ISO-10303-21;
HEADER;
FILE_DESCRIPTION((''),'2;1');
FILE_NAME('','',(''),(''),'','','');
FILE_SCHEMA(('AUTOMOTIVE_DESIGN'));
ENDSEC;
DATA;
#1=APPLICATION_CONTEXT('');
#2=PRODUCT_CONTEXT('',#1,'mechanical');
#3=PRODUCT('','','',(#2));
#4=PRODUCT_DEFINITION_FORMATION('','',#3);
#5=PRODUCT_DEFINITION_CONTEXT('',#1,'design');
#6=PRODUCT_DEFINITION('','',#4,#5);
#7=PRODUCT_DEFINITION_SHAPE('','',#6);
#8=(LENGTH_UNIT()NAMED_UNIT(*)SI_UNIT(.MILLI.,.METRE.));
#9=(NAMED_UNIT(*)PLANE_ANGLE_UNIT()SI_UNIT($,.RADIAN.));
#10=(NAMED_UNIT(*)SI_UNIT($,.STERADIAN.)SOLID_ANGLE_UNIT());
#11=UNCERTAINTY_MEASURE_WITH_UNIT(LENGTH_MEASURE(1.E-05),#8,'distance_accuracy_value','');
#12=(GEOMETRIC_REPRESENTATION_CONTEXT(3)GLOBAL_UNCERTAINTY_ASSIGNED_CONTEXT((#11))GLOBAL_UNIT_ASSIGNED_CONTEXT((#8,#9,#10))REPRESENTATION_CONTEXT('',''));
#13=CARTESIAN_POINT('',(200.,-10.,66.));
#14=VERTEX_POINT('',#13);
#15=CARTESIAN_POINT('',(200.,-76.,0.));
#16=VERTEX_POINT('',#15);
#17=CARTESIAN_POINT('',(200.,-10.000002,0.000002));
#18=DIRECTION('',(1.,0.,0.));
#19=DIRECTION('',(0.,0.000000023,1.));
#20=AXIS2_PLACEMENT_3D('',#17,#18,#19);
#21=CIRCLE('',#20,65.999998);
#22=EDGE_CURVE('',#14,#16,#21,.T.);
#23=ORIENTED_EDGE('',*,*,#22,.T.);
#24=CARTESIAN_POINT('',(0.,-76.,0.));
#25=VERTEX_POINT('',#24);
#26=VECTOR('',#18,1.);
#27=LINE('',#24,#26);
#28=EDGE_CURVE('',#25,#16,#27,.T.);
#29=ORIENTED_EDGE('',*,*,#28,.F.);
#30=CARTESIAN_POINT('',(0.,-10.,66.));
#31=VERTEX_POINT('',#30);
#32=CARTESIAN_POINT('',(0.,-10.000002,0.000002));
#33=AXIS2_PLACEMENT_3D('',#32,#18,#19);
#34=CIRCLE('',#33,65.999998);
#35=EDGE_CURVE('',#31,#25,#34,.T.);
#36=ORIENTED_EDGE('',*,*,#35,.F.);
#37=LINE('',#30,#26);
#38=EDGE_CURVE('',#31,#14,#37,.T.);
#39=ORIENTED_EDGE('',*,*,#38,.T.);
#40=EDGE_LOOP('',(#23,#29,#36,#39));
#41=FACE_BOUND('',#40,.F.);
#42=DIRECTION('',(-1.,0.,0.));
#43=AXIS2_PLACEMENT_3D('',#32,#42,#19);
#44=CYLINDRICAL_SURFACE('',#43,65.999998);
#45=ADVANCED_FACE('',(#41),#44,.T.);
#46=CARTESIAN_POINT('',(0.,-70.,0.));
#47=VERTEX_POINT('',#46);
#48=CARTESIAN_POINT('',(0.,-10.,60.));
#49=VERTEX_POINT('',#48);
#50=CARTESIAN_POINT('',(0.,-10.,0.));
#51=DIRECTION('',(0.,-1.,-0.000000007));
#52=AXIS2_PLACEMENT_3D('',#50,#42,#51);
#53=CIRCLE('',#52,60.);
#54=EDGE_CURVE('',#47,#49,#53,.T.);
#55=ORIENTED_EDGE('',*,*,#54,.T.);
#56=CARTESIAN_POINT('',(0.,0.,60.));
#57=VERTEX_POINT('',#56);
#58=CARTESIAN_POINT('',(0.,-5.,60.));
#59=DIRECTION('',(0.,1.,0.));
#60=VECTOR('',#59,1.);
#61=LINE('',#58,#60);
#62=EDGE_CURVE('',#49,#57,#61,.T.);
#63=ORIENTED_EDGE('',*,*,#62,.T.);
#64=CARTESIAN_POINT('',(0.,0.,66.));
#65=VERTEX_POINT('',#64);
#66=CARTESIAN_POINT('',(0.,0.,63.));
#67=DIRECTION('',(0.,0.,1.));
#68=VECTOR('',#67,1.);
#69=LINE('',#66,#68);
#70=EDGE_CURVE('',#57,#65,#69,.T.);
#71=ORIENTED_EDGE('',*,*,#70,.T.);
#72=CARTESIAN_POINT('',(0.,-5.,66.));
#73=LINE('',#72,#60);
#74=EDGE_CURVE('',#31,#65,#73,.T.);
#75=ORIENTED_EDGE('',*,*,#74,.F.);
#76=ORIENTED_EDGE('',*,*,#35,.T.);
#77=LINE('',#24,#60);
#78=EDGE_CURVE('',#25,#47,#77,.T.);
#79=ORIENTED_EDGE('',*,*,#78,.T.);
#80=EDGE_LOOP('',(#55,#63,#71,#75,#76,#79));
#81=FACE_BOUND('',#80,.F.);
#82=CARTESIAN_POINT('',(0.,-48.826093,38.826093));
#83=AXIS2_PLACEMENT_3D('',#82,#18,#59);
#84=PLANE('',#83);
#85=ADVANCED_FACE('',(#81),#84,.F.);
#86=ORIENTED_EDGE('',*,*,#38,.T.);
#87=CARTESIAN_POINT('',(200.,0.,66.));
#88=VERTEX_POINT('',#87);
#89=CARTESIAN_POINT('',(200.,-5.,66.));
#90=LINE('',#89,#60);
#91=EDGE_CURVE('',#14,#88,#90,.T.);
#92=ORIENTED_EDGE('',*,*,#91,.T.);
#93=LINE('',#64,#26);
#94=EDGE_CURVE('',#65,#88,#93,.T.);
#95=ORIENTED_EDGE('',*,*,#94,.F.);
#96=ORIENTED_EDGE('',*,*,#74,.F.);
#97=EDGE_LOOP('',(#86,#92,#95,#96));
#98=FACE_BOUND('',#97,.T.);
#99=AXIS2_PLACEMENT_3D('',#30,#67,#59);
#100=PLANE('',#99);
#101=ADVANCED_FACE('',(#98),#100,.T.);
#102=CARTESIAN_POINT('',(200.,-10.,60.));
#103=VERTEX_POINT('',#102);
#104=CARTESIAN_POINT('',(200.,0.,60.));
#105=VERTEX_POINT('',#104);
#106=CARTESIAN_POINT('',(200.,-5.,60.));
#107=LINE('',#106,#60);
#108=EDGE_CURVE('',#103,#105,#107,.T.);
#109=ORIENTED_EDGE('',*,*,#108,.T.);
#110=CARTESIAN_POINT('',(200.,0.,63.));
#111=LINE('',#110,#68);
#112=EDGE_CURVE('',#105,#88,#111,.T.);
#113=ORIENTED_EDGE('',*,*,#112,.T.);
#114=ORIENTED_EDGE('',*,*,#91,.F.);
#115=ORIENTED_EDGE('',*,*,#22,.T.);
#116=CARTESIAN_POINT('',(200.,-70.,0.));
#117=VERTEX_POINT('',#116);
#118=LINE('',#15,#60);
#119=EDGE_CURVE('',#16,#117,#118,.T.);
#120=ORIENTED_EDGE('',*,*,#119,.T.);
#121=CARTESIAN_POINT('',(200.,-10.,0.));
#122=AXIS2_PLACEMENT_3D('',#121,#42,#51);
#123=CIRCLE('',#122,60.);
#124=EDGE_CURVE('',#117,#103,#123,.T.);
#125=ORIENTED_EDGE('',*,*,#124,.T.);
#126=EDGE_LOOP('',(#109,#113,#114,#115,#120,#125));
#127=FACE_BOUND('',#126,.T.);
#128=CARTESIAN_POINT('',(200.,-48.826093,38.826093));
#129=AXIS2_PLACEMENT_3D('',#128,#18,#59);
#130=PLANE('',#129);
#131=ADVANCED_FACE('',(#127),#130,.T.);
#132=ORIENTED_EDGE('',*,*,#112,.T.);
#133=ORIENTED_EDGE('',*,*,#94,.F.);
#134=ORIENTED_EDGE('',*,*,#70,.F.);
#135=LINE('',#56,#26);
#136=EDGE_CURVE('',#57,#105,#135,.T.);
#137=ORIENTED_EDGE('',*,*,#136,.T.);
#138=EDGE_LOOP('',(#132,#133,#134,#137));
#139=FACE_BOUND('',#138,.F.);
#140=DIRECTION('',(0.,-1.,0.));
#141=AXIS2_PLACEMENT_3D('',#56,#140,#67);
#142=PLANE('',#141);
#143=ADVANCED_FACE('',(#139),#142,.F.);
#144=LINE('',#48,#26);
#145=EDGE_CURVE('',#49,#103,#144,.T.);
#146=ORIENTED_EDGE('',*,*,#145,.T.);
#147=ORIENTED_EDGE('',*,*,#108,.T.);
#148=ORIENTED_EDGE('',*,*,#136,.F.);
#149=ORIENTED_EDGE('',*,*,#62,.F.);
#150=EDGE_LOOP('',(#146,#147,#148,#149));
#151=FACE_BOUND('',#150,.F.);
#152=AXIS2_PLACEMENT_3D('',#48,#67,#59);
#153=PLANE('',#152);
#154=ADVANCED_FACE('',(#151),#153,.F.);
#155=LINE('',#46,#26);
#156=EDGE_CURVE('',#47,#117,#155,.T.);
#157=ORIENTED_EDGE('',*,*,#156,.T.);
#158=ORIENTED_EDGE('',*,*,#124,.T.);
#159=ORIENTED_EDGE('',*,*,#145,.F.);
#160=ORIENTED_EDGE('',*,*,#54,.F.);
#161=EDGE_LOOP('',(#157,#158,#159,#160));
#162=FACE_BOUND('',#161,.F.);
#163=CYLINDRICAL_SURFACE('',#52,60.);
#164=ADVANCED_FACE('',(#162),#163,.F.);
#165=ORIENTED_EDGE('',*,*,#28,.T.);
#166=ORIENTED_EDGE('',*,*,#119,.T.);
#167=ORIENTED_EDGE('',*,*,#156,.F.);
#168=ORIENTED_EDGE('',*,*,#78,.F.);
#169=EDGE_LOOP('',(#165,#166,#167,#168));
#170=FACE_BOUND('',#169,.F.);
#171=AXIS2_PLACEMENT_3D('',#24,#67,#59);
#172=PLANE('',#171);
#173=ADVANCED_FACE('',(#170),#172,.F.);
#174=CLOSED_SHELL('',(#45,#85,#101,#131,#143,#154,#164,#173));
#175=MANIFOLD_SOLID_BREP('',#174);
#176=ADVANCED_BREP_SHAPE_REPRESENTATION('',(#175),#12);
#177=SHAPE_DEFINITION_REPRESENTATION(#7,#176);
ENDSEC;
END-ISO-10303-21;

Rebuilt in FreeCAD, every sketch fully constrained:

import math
import FreeCAD as App
import Part
import Sketcher
from FreeCAD import Vector

doc = App.newDocument("Part")
params = doc.addObject("Spreadsheet::Sheet", "Params")
for row, (alias, value) in enumerate([
    ("sketch1_radius", "60 mm"),
    ("sketch1_radius2", "65.999998 mm"),
    ("sketch1_width", "10 mm"),
    ("pad1_length", "200 mm"),
], start=1):
    params.set(f"A{row}", alias)
    params.set(f"B{row}", "=" + value)
    params.setAlias(f"B{row}", alias)

body = doc.addObject("PartDesign::Body", "Body")

# Sketch on YZ plane
sketch1 = body.newObject("Sketcher::SketchObject", "Sketch")
sketch1.AttachmentSupport = (doc.getObject("YZ_Plane"), [""])
sketch1.MapMode = "FlatFace"
sketch1.addGeometry([
    Part.LineSegment(Vector(-76, 0, 0), Vector(-70, 0, 0)),  # 0
    Part.ArcOfCircle(Part.Circle(Vector(-10, 0, 0), Vector(0, 0, 1), 60), math.radians(90), math.radians(180)),  # 1
    Part.LineSegment(Vector(-10, 60, 0), Vector(0, 60, 0)),  # 2
    Part.LineSegment(Vector(0, 60, 0), Vector(0, 66, 0)),  # 3
    Part.LineSegment(Vector(0, 66, 0), Vector(-10, 66, 0)),  # 4
    Part.ArcOfCircle(Part.Circle(Vector(-10, 0, 0), Vector(0, 0, 1), 66), math.radians(90), math.radians(180)),  # 5
], False)
sketch1.addConstraint([
    Sketcher.Constraint("Coincident", 0, 2, 1, 2),
    Sketcher.Constraint("Tangent", 1, 1, 2, 1),
    Sketcher.Constraint("Coincident", 2, 2, 3, 1),
    Sketcher.Constraint("Coincident", 3, 2, 4, 1),
    Sketcher.Constraint("Tangent", 4, 2, 5, 1),
    Sketcher.Constraint("Coincident", 5, 2, 0, 1),
    Sketcher.Constraint("Horizontal", 0),
    Sketcher.Constraint("Horizontal", 2),
    Sketcher.Constraint("Vertical", 3),
    Sketcher.Constraint("Horizontal", 4),
    Sketcher.Constraint("Coincident", 5, 3, 1, 3),
    Sketcher.Constraint("PointOnObject", 1, 3, -1),
    Sketcher.Constraint("PointOnObject", 0, 2, -1),
    Sketcher.Constraint("PointOnObject", 2, 2, -2),
    Sketcher.Constraint("Radius", 1, 60.0),
    Sketcher.Constraint("Radius", 5, 65.999998),
    Sketcher.Constraint("DistanceX", 2, 1, 2, 2, 10.0),
])
sketch1.setExpression("Constraints[14]", "Params.sketch1_radius")
sketch1.setExpression("Constraints[15]", "Params.sketch1_radius2")
sketch1.setExpression("Constraints[16]", "Params.sketch1_width")
pad1 = body.newObject("PartDesign::Pad", "Pad")
pad1.Profile = sketch1
pad1.setExpression("Length", "Params.pad1_length")

doc.recompute()
